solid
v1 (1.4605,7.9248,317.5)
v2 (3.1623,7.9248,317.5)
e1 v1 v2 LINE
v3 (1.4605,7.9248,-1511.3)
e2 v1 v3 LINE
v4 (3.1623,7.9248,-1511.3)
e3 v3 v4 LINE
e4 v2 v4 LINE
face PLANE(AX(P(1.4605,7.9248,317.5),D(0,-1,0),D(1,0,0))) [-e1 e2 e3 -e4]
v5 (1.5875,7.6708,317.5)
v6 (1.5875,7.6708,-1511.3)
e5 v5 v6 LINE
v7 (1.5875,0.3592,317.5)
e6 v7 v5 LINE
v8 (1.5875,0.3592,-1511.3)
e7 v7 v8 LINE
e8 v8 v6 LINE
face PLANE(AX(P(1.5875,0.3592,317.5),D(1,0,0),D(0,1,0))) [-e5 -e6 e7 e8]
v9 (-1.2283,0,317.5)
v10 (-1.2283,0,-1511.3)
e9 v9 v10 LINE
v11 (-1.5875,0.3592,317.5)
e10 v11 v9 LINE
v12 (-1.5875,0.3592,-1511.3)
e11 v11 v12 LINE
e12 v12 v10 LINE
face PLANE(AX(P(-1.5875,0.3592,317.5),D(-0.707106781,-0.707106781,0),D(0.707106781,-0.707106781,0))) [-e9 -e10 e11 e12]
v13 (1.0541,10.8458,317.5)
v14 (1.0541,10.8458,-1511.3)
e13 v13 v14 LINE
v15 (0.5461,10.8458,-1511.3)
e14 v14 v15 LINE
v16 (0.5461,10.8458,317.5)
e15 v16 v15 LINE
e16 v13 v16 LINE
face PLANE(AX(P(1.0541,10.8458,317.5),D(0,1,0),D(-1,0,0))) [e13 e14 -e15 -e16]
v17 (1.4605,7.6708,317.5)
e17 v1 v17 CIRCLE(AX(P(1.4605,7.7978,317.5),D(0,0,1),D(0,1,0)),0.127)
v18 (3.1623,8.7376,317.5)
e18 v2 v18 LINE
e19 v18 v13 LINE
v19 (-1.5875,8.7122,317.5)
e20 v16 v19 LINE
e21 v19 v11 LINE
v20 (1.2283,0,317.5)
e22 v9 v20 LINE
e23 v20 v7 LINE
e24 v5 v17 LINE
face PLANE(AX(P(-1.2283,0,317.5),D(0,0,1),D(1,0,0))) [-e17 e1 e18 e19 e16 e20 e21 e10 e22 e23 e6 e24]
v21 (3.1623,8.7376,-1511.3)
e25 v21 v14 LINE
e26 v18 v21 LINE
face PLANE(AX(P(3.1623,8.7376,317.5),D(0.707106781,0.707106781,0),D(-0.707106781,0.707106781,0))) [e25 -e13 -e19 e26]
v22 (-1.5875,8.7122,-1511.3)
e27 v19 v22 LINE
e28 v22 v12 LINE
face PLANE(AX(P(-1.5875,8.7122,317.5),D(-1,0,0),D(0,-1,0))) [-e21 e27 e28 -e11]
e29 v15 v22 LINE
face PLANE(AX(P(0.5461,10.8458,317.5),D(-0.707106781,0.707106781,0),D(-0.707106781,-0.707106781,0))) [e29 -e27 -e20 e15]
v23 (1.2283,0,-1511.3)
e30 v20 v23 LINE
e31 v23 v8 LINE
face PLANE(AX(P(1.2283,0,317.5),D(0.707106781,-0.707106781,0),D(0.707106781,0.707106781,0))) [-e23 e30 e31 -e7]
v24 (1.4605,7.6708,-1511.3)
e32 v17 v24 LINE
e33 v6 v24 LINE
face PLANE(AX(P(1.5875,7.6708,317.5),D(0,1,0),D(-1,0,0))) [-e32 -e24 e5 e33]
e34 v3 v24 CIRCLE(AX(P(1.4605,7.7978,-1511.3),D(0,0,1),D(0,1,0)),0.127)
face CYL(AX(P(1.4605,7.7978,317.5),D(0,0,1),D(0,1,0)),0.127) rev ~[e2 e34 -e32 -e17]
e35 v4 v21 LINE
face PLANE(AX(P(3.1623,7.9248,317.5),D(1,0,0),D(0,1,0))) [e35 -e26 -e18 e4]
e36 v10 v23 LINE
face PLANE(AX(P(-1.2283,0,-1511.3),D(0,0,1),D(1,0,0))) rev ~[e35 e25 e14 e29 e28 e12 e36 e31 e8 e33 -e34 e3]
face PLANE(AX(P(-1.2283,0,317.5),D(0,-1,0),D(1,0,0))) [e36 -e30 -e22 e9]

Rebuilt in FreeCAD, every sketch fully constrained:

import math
import FreeCAD as App
import Part
import Sketcher

V = App.Vector
Q = App.Units.Quantity

doc = App.newDocument("Part")
body = doc.addObject("PartDesign::Body", "Body")

sketch1 = body.newObject("Sketcher::SketchObject", "Sketch")
sketch1.AttachmentSupport = (doc.getObject("XY_Plane"), [""])
sketch1.MapMode = "FlatFace"
sketch1.AttachmentOffset = App.Placement(V(0, 0, 12.5 * 25.4), App.Rotation())
sketch1.addGeometry(Part.LineSegment(V(0.55, 10.85, 0), V(-1.59, 8.71, 0)), False)
sketch1.addGeometry(Part.LineSegment(V(-1.59, 8.71, 0), V(-1.59, 0.36, 0)), False)
sketch1.addGeometry(Part.LineSegment(V(-1.59, 0.36, 0), V(-1.23, 0, 0)), False)
sketch1.addGeometry(Part.LineSegment(V(-1.23, 0, 0), V(1.23, 0, 0)), False)
sketch1.addGeometry(Part.LineSegment(V(1.23, 0, 0), V(1.59, 0.36, 0)), False)
sketch1.addGeometry(Part.LineSegment(V(1.59, 0.36, 0), V(1.59, 7.67, 0)), False)
sketch1.addGeometry(Part.LineSegment(V(1.59, 7.67, 0), V(1.46, 7.67, 0)), False)
sketch1.addGeometry(Part.ArcOfCircle(Part.Circle(V(1.46, 7.8, 0), V(0, 0, 1), 0.13), math.radians(90), math.radians(270)), False)
sketch1.addGeometry(Part.LineSegment(V(1.46, 7.92, 0), V(3.16, 7.92, 0)), False)
sketch1.addGeometry(Part.LineSegment(V(3.16, 7.92, 0), V(3.16, 8.74, 0)), False)
sketch1.addGeometry(Part.LineSegment(V(3.16, 8.74, 0), V(1.05, 10.85, 0)), False)
sketch1.addGeometry(Part.LineSegment(V(1.05, 10.85, 0), V(0.55, 10.85, 0)), False)
sketch1.addConstraint(Sketcher.Constraint("Coincident", 0, 2, 1, 1))
sketch1.addConstraint(Sketcher.Constraint("Coincident", 1, 2, 2, 1))
sketch1.addConstraint(Sketcher.Constraint("Coincident", 2, 2, 3, 1))
sketch1.addConstraint(Sketcher.Constraint("Coincident", 3, 2, 4, 1))
sketch1.addConstraint(Sketcher.Constraint("Coincident", 4, 2, 5, 1))
sketch1.addConstraint(Sketcher.Constraint("Coincident", 5, 2, 6, 1))
sketch1.addConstraint(Sketcher.Constraint("Tangent", 6, 2, 7, 2))
sketch1.addConstraint(Sketcher.Constraint("Tangent", 7, 1, 8, 1))
sketch1.addConstraint(Sketcher.Constraint("Coincident", 8, 2, 9, 1))
sketch1.addConstraint(Sketcher.Constraint("Coincident", 9, 2, 10, 1))
sketch1.addConstraint(Sketcher.Constraint("Coincident", 10, 2, 11, 1))
sketch1.addConstraint(Sketcher.Constraint("Coincident", 11, 2, 0, 1))
sketch1.addConstraint(Sketcher.Constraint("Vertical", 1))
sketch1.addConstraint(Sketcher.Constraint("Horizontal", 3))
sketch1.addConstraint(Sketcher.Constraint("Vertical", 5))
sketch1.addConstraint(Sketcher.Constraint("Horizontal", 6))
sketch1.addConstraint(Sketcher.Constraint("Horizontal", 8))
sketch1.addConstraint(Sketcher.Constraint("Vertical", 9))
sketch1.addConstraint(Sketcher.Constraint("Horizontal", 11))
sketch1.addConstraint(Sketcher.Constraint("Symmetric", 2, 2, 3, 2, -1, 1))
sketch1.addConstraint(Sketcher.Constraint("Symmetric", 1, 2, 4, 2, -2))
sketch1.addConstraint(Sketcher.Constraint("Perpendicular", 0, 2))
sketch1.addConstraint(Sketcher.Constraint("Perpendicular", 2, 4))
sketch1.addConstraint(Sketcher.Constraint("Perpendicular", 4, 10))
sketch1.addConstraint(Sketcher.Constraint("Radius", 7, Q("0.005 in")))
sketch1.addConstraint(Sketcher.Constraint("DistanceX", 11, 2, 11, 1, Q("0.02 in")))
sketch1.addConstraint(Sketcher.Constraint("Distance", 2, Q("0.02 in")))
sketch1.addConstraint(Sketcher.Constraint("DistanceX", 6, 2, 6, 1, Q("0.005 in")))
sketch1.addConstraint(Sketcher.Constraint("DistanceX", 8, 1, 8, 2, Q("0.067 in")))
sketch1.addConstraint(Sketcher.Constraint("DistanceY", 9, 1, 9, 2, Q("0.032 in")))
sketch1.addConstraint(Sketcher.Constraint("DistanceX", 0, 2, 7, 3, Q("0.12 in")))
sketch1.addConstraint(Sketcher.Constraint("DistanceY", 7, 3, 10, 2, Q("0.12 in")))
sketch1.addConstraint(Sketcher.Constraint("DistanceY", -1, 1, 7, 3, Q("0.307 in")))
pad1 = body.newObject("PartDesign::Pad", "Pad")
pad1.Profile = sketch1
pad1.Length = Q("72 in")
pad1.Reversed = True

doc.recompute()
